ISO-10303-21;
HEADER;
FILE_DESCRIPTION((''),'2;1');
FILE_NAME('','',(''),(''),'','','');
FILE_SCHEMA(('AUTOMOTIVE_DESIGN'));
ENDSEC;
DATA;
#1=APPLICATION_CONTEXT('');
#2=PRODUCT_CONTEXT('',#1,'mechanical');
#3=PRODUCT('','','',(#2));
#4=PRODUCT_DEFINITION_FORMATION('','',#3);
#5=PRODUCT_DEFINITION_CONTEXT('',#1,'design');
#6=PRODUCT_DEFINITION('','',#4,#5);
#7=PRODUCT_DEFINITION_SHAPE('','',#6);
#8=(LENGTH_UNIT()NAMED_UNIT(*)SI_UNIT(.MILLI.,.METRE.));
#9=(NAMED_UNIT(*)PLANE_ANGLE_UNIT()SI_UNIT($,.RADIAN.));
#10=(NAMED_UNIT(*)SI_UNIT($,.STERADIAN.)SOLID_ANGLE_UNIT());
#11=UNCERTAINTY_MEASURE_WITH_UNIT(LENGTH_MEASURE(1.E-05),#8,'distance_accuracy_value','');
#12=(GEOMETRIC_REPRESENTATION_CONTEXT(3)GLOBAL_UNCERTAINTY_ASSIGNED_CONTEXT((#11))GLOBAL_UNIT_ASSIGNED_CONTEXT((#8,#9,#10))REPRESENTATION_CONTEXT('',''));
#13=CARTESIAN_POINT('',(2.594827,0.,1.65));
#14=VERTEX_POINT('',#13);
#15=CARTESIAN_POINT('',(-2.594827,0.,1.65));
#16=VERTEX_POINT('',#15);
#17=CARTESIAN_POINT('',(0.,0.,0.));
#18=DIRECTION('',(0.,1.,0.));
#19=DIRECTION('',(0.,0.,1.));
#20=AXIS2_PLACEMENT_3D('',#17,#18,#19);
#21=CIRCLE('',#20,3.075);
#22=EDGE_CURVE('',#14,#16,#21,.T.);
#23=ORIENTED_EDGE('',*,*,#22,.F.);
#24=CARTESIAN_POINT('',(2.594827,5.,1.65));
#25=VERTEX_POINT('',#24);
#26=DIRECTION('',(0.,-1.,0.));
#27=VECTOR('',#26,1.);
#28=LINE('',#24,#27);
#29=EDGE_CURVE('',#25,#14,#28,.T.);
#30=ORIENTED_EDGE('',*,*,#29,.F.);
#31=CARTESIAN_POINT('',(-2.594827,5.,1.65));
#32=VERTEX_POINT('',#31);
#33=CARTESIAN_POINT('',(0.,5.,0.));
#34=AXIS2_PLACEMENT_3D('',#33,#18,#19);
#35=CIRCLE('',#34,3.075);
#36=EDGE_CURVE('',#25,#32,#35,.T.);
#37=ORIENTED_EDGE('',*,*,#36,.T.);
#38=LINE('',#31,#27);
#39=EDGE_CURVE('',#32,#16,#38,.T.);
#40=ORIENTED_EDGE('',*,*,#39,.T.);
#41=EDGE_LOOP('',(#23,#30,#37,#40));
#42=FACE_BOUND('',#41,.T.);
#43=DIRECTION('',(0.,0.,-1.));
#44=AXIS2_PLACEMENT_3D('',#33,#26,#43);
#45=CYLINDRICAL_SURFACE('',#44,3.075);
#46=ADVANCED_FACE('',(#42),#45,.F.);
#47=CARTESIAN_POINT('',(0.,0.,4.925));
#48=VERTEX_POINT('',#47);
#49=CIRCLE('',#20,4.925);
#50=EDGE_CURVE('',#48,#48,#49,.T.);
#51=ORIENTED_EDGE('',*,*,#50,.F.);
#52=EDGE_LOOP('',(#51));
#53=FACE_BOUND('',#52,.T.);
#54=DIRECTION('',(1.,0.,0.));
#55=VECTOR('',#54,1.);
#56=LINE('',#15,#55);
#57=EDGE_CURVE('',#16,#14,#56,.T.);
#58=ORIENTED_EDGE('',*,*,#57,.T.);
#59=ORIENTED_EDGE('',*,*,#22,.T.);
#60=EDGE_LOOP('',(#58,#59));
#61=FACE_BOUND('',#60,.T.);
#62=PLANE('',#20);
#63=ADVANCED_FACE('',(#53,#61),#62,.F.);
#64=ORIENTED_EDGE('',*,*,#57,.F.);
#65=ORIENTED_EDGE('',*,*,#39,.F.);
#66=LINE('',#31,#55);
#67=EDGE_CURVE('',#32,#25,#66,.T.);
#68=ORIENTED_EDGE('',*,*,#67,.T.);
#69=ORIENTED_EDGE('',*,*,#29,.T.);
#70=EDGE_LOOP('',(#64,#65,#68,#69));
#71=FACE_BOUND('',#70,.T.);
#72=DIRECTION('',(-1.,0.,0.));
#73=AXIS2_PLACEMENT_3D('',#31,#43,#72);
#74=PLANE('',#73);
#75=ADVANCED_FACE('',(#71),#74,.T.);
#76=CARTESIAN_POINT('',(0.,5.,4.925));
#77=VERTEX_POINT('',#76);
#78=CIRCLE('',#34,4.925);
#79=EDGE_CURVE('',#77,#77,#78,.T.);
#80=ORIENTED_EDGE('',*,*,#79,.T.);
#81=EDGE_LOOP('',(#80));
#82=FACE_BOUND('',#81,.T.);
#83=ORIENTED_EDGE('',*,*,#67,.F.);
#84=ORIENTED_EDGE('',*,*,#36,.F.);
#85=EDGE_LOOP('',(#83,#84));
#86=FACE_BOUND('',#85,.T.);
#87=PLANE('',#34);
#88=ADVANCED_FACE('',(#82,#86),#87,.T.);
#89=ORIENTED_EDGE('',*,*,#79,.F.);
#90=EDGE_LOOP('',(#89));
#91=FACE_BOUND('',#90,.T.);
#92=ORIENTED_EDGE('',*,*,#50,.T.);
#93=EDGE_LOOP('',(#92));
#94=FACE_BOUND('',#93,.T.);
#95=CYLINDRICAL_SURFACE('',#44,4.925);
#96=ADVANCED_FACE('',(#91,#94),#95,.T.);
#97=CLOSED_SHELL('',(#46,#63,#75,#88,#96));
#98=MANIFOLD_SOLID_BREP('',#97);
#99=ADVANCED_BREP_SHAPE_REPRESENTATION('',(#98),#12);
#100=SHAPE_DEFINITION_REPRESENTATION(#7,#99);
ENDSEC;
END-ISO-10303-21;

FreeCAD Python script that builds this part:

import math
import FreeCAD as App
import Part
import Sketcher

V = App.Vector
Q = App.Units.Quantity

doc = App.newDocument("Part")
body = doc.addObject("PartDesign::Body", "Body")

# Sketch on XZ plane
sketch1 = body.newObject("Sketcher::SketchObject", "Sketch")
sketch1.AttachmentSupport = (doc.getObject("XZ_Plane"), [""])
sketch1.MapMode = "FlatFace"
sketch1.addGeometry(Part.Circle(V(0, 0, 0), V(0, 0, 1), 4.925), False)
sketch1.addGeometry(Part.LineSegment(V(2.594827, 1.65, 0), V(-2.594827, 1.65, 0)), False)
sketch1.addGeometry(Part.ArcOfCircle(Part.Circle(V(0, 0, 0), V(0, 0, 1), 3.075), math.radians(147.548509), math.radians(392.451491)), False)
sketch1.addConstraint(Sketcher.Constraint("Coincident", 1, 1, 2, 2))
sketch1.addConstraint(Sketcher.Constraint("Coincident", 2, 1, 1, 2))
sketch1.addConstraint(Sketcher.Constraint("Horizontal", 1))
sketch1.addConstraint(Sketcher.Constraint("Coincident", 0, 3, -1, 1))
sketch1.addConstraint(Sketcher.Constraint("Coincident", 2, 3, -1, 1))
sketch1.addConstraint(Sketcher.Constraint("Diameter", 0, Q("9.85 mm")))
sketch1.addConstraint(Sketcher.Constraint("Radius", 2, Q("3.075 mm")))
sketch1.addConstraint(Sketcher.Constraint("DistanceY", -1, 1, 1, 1, Q("1.65 mm")))
pad1 = body.newObject("PartDesign::Pad", "Pad")
pad1.Profile = sketch1
pad1.Length = 5
pad1.Reversed = True

doc.recompute()
